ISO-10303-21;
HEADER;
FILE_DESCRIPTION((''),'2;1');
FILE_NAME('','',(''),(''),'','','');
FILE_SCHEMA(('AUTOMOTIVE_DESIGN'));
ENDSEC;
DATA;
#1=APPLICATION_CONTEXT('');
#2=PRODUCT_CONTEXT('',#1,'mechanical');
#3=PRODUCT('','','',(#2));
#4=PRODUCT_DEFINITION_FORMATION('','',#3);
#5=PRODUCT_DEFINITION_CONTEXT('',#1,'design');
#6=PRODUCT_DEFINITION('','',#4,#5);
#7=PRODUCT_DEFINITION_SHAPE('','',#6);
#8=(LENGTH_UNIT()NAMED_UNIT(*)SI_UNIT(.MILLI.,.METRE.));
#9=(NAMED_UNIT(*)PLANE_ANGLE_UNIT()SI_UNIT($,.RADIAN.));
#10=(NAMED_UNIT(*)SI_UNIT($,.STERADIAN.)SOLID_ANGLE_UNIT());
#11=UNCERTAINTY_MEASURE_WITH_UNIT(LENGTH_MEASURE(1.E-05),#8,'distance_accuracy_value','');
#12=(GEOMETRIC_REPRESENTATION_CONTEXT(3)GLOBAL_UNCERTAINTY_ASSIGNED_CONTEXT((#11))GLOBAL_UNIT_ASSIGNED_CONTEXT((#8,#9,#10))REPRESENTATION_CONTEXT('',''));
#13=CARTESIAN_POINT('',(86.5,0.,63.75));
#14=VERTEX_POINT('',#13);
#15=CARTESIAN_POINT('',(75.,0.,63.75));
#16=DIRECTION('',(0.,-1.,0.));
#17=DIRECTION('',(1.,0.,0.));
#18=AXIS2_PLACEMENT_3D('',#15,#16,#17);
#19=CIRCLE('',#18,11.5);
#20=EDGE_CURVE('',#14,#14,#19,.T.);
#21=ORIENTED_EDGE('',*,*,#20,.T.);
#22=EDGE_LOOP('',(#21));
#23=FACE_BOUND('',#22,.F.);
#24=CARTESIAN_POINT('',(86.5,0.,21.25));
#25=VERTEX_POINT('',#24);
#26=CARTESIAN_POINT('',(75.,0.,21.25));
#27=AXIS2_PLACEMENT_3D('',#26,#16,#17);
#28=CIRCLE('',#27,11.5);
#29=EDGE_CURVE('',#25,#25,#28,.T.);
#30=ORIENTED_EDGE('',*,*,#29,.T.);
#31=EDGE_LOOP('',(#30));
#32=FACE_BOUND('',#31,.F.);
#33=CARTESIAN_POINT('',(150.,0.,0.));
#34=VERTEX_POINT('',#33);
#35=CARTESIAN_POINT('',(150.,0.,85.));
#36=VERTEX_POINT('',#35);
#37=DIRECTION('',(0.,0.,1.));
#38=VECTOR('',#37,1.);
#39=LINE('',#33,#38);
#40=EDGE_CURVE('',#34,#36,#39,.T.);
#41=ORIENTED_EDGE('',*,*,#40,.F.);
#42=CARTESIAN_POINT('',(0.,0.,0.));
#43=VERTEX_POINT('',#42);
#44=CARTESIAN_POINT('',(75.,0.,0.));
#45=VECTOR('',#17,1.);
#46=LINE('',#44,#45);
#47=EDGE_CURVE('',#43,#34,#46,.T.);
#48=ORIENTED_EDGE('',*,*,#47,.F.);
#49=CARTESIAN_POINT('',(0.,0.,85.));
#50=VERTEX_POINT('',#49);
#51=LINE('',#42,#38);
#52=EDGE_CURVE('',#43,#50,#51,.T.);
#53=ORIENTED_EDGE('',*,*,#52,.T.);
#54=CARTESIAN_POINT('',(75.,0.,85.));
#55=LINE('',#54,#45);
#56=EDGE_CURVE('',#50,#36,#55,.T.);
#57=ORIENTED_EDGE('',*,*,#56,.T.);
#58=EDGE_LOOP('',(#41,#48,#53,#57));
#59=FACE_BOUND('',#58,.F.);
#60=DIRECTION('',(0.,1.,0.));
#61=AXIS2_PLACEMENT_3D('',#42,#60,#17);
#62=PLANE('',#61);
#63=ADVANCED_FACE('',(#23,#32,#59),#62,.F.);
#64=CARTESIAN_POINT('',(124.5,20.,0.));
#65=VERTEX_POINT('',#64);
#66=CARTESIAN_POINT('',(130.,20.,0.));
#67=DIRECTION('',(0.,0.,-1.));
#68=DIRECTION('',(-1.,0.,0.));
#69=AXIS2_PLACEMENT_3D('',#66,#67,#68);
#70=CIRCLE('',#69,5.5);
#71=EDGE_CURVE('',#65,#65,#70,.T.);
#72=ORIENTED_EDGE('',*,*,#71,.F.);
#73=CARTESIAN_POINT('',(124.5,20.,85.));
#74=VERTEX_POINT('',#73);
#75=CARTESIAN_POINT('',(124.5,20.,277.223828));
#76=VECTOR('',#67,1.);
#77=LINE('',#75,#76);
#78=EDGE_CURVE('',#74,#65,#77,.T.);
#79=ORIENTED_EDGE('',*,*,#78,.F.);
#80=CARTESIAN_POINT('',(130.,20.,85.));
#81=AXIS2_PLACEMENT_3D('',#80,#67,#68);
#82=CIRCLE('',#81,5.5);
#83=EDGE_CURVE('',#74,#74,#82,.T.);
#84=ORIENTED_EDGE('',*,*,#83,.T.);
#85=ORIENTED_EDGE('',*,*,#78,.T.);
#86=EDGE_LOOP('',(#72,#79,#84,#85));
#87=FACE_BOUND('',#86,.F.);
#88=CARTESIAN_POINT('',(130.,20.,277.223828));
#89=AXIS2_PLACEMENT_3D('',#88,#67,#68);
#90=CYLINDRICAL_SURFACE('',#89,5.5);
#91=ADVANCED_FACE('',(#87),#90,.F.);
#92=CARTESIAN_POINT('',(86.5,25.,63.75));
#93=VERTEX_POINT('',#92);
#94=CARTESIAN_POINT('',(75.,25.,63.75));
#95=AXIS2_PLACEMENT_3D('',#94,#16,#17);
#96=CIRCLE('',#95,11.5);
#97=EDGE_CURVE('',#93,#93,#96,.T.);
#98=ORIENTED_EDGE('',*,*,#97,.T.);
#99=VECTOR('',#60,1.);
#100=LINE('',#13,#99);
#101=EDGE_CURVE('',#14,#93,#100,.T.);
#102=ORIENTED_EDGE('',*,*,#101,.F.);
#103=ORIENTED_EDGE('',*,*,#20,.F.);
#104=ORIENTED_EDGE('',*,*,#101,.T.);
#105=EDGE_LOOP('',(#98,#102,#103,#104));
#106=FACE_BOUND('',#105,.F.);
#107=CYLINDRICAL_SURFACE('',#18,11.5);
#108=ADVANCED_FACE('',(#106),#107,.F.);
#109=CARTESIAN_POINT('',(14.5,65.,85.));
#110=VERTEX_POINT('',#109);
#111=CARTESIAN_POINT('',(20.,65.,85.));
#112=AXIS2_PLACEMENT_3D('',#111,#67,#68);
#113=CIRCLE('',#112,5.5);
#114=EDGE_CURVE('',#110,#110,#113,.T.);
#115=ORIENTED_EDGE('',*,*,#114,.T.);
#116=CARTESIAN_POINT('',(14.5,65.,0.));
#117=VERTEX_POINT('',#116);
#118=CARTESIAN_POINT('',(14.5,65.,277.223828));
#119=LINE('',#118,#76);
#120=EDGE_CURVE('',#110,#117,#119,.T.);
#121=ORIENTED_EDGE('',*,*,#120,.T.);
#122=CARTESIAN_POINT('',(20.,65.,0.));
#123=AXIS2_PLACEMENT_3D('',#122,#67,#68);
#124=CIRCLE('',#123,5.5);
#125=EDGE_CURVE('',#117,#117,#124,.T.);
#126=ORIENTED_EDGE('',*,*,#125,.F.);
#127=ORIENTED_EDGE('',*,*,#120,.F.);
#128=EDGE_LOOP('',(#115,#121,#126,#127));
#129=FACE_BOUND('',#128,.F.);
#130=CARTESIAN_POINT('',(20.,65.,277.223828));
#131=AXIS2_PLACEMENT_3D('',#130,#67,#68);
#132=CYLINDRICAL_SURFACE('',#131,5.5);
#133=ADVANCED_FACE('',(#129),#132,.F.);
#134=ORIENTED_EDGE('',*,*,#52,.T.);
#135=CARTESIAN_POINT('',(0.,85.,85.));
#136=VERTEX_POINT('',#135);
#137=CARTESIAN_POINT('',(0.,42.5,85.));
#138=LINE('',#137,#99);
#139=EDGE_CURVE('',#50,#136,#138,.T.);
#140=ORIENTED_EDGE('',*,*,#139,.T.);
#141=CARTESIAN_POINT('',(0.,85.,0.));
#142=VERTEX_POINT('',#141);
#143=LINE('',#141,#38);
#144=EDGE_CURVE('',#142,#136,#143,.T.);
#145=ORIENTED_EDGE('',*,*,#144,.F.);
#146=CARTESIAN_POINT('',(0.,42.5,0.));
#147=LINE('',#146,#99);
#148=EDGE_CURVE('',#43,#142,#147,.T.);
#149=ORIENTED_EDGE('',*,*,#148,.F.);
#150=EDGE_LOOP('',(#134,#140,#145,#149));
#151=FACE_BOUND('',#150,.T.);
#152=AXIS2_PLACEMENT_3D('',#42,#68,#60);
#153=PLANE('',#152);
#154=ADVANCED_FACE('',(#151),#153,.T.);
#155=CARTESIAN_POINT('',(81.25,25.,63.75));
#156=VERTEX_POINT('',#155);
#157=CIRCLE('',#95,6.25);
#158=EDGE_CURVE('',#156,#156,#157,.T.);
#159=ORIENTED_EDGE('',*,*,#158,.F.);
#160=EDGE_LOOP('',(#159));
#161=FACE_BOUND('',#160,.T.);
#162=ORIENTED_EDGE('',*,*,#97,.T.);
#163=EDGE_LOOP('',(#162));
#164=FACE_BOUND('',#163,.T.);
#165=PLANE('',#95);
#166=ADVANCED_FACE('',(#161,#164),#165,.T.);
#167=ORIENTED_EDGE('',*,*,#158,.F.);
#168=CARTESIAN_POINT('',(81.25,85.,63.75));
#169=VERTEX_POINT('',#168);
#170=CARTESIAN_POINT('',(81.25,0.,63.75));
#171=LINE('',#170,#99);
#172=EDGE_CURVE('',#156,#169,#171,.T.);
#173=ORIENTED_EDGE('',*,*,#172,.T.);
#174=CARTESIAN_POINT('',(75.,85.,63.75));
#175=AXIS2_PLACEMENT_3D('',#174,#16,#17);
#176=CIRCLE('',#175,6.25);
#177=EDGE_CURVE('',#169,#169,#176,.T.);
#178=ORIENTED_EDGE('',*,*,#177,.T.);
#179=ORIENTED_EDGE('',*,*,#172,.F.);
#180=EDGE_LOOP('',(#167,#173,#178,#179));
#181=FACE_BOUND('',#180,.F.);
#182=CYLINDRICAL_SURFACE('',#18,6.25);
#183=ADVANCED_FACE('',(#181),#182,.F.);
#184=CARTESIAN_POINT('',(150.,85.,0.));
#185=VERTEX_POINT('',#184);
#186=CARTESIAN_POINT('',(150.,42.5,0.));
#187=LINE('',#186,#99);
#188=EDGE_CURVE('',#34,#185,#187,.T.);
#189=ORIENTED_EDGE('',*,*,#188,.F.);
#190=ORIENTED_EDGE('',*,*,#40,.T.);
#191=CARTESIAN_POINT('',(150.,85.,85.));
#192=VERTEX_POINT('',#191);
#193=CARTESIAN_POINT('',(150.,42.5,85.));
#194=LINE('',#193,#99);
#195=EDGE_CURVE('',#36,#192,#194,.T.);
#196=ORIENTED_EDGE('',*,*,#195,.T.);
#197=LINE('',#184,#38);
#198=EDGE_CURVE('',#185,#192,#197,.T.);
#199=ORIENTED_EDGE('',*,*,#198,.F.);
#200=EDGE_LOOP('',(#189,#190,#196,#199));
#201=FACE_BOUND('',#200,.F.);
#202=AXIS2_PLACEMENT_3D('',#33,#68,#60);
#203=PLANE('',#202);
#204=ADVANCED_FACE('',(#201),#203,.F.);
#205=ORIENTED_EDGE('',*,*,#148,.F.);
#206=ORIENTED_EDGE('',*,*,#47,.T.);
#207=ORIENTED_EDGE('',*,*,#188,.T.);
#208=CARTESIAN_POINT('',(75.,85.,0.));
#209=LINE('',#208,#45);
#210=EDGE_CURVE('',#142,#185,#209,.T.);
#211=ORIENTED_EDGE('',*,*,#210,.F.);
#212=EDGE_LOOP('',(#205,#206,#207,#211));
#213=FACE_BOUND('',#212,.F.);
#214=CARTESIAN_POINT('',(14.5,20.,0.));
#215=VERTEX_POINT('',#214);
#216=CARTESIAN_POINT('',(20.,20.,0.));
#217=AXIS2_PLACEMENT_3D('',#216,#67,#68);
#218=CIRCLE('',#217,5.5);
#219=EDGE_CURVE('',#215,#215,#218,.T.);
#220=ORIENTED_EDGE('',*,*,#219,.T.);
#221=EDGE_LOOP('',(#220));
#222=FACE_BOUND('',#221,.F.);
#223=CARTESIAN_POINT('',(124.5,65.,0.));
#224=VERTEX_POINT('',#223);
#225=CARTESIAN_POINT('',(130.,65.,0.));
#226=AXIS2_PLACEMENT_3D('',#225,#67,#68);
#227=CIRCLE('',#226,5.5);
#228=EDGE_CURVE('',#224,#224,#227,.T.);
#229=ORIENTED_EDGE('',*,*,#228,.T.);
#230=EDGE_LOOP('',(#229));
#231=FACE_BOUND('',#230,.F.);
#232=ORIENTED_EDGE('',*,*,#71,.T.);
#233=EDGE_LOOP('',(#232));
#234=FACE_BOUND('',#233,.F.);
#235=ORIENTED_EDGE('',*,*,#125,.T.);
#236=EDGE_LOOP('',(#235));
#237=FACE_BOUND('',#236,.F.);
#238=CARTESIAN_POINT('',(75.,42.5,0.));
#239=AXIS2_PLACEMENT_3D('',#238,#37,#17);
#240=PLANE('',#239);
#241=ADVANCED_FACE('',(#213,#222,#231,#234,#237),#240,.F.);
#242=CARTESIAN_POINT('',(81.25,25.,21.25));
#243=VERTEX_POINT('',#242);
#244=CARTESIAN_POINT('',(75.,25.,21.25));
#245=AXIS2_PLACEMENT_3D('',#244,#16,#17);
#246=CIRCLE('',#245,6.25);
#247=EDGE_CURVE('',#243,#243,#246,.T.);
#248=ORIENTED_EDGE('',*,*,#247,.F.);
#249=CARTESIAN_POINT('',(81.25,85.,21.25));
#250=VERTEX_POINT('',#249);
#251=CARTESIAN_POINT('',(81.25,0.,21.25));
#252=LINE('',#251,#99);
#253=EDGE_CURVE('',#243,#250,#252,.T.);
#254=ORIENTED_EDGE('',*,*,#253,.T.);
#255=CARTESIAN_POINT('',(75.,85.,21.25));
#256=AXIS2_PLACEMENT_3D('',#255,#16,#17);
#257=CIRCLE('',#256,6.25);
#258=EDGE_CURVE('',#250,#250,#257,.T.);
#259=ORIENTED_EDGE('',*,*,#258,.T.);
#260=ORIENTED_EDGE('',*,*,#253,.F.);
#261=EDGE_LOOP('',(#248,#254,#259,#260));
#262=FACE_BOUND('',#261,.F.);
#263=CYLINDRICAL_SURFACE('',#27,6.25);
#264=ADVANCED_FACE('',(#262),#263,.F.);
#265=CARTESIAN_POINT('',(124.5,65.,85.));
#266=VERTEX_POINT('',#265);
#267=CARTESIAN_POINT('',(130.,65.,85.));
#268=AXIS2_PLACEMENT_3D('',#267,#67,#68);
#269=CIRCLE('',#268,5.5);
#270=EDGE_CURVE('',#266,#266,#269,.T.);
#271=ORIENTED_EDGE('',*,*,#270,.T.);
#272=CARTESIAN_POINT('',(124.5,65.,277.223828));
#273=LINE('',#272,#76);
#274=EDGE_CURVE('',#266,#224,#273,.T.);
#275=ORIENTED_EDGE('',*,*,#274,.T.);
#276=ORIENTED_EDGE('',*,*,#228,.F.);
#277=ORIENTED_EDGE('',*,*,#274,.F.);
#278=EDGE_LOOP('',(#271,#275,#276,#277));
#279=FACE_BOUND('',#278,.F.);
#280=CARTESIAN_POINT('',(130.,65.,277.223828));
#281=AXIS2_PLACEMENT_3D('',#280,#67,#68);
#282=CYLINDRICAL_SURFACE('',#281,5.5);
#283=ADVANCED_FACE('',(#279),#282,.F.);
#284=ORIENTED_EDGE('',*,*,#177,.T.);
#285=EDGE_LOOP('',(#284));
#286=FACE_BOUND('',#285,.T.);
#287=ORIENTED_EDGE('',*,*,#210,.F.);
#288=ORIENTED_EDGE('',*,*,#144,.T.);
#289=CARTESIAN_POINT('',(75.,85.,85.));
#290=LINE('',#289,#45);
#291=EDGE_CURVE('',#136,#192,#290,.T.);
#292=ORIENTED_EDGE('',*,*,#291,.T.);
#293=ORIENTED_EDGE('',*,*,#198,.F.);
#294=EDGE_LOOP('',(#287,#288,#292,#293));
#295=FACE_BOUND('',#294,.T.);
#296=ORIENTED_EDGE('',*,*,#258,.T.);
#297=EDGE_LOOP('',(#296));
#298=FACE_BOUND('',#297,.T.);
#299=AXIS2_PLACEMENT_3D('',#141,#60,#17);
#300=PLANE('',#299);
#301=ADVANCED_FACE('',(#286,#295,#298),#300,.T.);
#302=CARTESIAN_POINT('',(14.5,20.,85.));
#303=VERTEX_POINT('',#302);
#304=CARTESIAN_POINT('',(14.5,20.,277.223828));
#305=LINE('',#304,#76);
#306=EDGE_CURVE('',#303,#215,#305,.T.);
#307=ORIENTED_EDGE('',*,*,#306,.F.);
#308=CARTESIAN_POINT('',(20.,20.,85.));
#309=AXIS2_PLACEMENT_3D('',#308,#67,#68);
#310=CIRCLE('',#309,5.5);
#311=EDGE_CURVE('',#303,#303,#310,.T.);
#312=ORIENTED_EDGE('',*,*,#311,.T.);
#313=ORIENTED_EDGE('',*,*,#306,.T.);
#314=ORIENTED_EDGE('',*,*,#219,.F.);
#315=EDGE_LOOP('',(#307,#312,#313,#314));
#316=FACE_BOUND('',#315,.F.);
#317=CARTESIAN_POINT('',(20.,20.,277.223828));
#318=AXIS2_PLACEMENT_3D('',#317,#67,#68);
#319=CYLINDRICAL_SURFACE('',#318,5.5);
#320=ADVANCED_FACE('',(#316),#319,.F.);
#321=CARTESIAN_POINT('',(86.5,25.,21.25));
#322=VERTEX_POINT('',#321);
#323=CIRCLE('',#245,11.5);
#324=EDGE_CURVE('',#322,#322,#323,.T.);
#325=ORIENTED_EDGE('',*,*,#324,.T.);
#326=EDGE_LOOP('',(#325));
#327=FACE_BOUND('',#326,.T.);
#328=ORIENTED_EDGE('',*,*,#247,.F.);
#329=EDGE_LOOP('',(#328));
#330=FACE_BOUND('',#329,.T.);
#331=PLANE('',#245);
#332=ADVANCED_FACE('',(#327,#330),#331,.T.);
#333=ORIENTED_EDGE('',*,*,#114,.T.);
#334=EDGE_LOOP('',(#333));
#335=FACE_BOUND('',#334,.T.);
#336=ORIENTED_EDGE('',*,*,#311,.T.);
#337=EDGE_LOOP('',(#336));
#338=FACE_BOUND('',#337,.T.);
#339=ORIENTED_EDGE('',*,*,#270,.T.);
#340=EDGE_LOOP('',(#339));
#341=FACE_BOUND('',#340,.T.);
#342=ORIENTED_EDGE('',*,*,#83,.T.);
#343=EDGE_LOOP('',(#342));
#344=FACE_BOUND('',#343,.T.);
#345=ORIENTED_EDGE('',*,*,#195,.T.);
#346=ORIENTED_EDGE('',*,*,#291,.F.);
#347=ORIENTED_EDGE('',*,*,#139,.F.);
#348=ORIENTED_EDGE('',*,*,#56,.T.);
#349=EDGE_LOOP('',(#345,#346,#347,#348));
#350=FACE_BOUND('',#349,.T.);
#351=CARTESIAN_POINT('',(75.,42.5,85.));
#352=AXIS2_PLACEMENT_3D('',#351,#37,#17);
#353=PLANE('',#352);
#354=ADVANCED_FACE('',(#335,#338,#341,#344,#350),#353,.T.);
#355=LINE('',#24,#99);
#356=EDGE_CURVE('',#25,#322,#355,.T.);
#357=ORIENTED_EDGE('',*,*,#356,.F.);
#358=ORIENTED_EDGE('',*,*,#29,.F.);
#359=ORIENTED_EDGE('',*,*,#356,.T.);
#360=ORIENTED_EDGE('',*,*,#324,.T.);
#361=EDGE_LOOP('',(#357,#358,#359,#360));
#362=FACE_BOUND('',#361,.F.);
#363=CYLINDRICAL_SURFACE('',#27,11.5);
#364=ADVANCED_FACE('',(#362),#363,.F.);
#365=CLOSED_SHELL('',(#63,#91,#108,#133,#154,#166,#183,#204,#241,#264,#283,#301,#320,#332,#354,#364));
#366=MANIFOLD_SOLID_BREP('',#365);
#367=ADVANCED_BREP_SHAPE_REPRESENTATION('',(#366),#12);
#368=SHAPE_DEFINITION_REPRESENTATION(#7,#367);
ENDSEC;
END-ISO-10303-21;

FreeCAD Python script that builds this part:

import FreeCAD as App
import Part
import Sketcher
from FreeCAD import Vector


def add_polygon(sketch, points):
    """Adds a closed chain of lines whose ends are joined by coincident constraints."""
    first, n = sketch.GeometryCount, len(points)
    for a, b in zip(points, points[1:] + points[:1]):
        sketch.addGeometry(Part.LineSegment(App.Vector(*a, 0), App.Vector(*b, 0)), False)
    for i in range(n):
        sketch.addConstraint(Sketcher.Constraint("Coincident", first + i, 2, first + (i + 1) % n, 1))

doc = App.newDocument("Part")
body = doc.addObject("PartDesign::Body", "Body")

# Sketch on XY plane
sketch1 = body.newObject("Sketcher::SketchObject", "Sketch")
sketch1.AttachmentSupport = (doc.getObject("XY_Plane"), [""])
sketch1.MapMode = "FlatFace"
add_polygon(sketch1, [(0, 85), (0, 0), (150, 0), (150, 85)])  # lines 0-3
sketch1.addConstraint(Sketcher.Constraint("Vertical", 0))
sketch1.addConstraint(Sketcher.Constraint("Horizontal", 1))
sketch1.addConstraint(Sketcher.Constraint("Vertical", 2))
sketch1.addConstraint(Sketcher.Constraint("Horizontal", 3))
sketch1.addConstraint(Sketcher.Constraint("Coincident", 0, 2, -1, 1))
sketch1.addConstraint(Sketcher.Constraint("DistanceX", 1, 1, 1, 2, 150.0))
sketch1.addConstraint(Sketcher.Constraint("DistanceY", 0, 2, 0, 1, 85.0))
pad1 = body.newObject("PartDesign::Pad", "Pad")
pad1.Profile = sketch1
pad1.Length = 85

# Sketch on XZ plane
sketch2 = body.newObject("Sketcher::SketchObject", "Sketch001")
sketch2.AttachmentSupport = (doc.getObject("XZ_Plane"), [""])
sketch2.MapMode = "FlatFace"
sketch2.addGeometry(Part.Circle(Vector(75, 64, 0), Vector(0, 0, 1), 6), False)
sketch2.addGeometry(Part.Circle(Vector(75, 21, 0), Vector(0, 0, 1), 6), False)
sketch2.addConstraint(Sketcher.Constraint("Equal", 0, 1))
sketch2.addConstraint(Sketcher.Constraint("Vertical", 0, 3, 1, 3))
sketch2.addConstraint(Sketcher.Constraint("Diameter", 0, 12.5))
sketch2.addConstraint(Sketcher.Constraint("DistanceX", -1, 1, 0, 3, 75.0))
sketch2.addConstraint(Sketcher.Constraint("DistanceY", 1, 3, 0, 3, 42.5))
sketch2.addConstraint(Sketcher.Constraint("DistanceY", -1, 1, 0, 3, 63.75))
pocket1 = body.newObject("PartDesign::Pocket", "Pocket")
pocket1.Profile = sketch2
pocket1.Type = "ThroughAll"

# Sketch on XZ plane
sketch3 = body.newObject("Sketcher::SketchObject", "Sketch002")
sketch3.AttachmentSupport = (doc.getObject("XZ_Plane"), [""])
sketch3.MapMode = "FlatFace"
sketch3.addGeometry(Part.Circle(Vector(75, 64, 0), Vector(0, 0, 1), 12), False)
sketch3.addGeometry(Part.Circle(Vector(75, 64, 0), Vector(0, 0, 1), 6), False)
sketch3.addGeometry(Part.Circle(Vector(75, 21, 0), Vector(0, 0, 1), 12), False)
sketch3.addGeometry(Part.Circle(Vector(75, 21, 0), Vector(0, 0, 1), 6), False)
sketch3.addConstraint(Sketcher.Constraint("Coincident", 1, 3, 0, 3))
sketch3.addConstraint(Sketcher.Constraint("Coincident", 3, 3, 2, 3))
sketch3.addConstraint(Sketcher.Constraint("Equal", 0, 2))
sketch3.addConstraint(Sketcher.Constraint("Equal", 1, 3))
sketch3.addConstraint(Sketcher.Constraint("Vertical", 1, 3, 2, 3))
sketch3.addConstraint(Sketcher.Constraint("Diameter", 0, 23.0))
sketch3.addConstraint(Sketcher.Constraint("Diameter", 1, 12.5))
sketch3.addConstraint(Sketcher.Constraint("DistanceX", -1, 1, 0, 3, 75.0))
sketch3.addConstraint(Sketcher.Constraint("DistanceY", 2, 3, 0, 3, 42.5))
sketch3.addConstraint(Sketcher.Constraint("DistanceY", -1, 1, 0, 3, 63.75))
pocket2 = body.newObject("PartDesign::Pocket", "Pocket001")
pocket2.Profile = sketch3
pocket2.Length = 25

# Sketch on XY plane
sketch4 = body.newObject("Sketcher::SketchObject", "Sketch003")
sketch4.AttachmentSupport = (doc.getObject("XY_Plane"), [""])
sketch4.MapMode = "FlatFace"
sketch4.AttachmentOffset = App.Placement(Vector(0, 0, 85), App.Rotation())
sketch4.addGeometry(Part.Circle(Vector(20, 65, 0), Vector(0, 0, 1), 6), False)
sketch4.addGeometry(Part.Circle(Vector(20, 20, 0), Vector(0, 0, 1), 6), False)
sketch4.addGeometry(Part.Circle(Vector(130, 20, 0), Vector(0, 0, 1), 6), False)
sketch4.addGeometry(Part.Circle(Vector(130, 65, 0), Vector(0, 0, 1), 6), False)
sketch4.addConstraint(Sketcher.Constraint("Equal", 0, 1))
sketch4.addConstraint(Sketcher.Constraint("Equal", 1, 2))
sketch4.addConstraint(Sketcher.Constraint("Equal", 2, 3))
sketch4.addConstraint(Sketcher.Constraint("Horizontal", 1, 3, 2, 3))
sketch4.addConstraint(Sketcher.Constraint("Horizontal", 0, 3, 3, 3))
sketch4.addConstraint(Sketcher.Constraint("Vertical", 0, 3, 1, 3))
sketch4.addConstraint(Sketcher.Constraint("Vertical", 2, 3, 3, 3))
sketch4.addConstraint(Sketcher.Constraint("Diameter", 0, 11.0))
sketch4.addConstraint(Sketcher.Constraint("DistanceX", -1, 1, 0, 3, 20.0))
sketch4.addConstraint(Sketcher.Constraint("DistanceY", -1, 1, 0, 3, 65.0))
sketch4.addConstraint(Sketcher.Constraint("DistanceY", -1, 1, 1, 3, 20.0))
sketch4.addConstraint(Sketcher.Constraint("DistanceX", -1, 1, 2, 3, 130.0))
doc.recompute()
hole = body.newObject("PartDesign::Hole", "Hole")
hole.Profile = sketch4
hole.ThreadType = "None"
hole.Diameter = 11
hole.DepthType = "ThroughAll"

doc.recompute()
